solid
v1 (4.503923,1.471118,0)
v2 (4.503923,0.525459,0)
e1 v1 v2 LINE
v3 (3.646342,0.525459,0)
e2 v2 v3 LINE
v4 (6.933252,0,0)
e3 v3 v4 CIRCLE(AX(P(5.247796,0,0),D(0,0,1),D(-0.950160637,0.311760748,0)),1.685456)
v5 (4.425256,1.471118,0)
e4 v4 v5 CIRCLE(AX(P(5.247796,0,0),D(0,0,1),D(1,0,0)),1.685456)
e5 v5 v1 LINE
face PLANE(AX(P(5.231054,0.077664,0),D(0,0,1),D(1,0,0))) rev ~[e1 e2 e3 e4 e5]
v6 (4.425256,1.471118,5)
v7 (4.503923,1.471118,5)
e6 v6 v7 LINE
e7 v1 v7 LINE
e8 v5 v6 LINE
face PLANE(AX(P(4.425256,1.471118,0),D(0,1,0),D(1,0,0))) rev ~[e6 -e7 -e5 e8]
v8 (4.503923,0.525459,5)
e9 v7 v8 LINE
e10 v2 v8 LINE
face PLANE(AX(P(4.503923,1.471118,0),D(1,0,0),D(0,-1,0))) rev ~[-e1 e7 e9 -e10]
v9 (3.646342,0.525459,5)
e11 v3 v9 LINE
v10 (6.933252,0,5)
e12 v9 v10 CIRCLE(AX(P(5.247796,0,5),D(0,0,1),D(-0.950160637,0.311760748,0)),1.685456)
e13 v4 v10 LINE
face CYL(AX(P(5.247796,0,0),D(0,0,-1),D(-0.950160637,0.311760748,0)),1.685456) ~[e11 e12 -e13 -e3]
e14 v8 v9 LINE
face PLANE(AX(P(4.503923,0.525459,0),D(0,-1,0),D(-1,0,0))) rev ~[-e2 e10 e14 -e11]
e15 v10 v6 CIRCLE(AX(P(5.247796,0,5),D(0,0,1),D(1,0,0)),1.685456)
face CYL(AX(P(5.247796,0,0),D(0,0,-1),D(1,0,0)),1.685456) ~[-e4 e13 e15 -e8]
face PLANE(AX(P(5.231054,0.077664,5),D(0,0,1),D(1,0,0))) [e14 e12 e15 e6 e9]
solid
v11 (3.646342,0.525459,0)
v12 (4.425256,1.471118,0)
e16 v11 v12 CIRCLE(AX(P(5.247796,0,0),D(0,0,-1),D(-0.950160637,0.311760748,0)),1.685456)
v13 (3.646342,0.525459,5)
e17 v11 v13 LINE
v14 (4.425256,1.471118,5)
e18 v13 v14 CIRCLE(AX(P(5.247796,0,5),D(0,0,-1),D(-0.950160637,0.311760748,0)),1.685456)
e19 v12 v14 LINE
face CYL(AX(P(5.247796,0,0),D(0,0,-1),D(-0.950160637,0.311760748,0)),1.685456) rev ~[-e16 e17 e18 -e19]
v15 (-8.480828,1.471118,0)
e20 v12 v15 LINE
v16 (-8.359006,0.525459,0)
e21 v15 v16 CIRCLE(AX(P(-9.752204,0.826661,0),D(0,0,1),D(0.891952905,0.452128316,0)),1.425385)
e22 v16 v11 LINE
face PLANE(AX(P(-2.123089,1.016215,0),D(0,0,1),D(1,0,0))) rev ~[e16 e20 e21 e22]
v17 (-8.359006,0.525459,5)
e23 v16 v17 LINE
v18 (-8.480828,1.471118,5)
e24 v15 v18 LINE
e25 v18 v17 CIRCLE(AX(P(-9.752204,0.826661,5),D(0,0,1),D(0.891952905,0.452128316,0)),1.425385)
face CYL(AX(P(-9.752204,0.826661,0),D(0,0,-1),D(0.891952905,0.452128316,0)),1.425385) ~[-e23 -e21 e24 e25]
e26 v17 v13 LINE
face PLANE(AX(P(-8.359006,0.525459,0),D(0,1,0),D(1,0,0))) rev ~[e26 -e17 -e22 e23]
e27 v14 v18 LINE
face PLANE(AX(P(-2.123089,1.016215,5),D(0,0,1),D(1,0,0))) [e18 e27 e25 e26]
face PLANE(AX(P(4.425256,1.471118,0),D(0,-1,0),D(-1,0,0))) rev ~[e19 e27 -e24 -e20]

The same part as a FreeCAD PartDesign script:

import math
import FreeCAD as App
import Part
import Sketcher

V = App.Vector
Q = App.Units.Quantity

doc = App.newDocument("Part")
params = doc.addObject("Spreadsheet::Sheet", "Params")
for row, (alias, value) in enumerate([
    ("pad1_length", "5 mm"),
    ("pad2_length", "5 mm"),
], start=1):
    params.set(f"A{row}", alias)
    params.set(f"B{row}", "=" + value)
    params.setAlias(f"B{row}", alias)

body = doc.addObject("PartDesign::Body", "Body")

# Sketch on XY plane
sketch1 = body.newObject("Sketcher::SketchObject", "Sketch")
sketch1.AttachmentSupport = (doc.getObject("XY_Plane"), [""])
sketch1.MapMode = "FlatFace"
sketch1.addGeometry([
    Part.ArcOfCircle(Part.Circle(V(5.25, 0, 0), V(0, 0, 1), 1.69), math.radians(0), math.radians(119)),  # 0
    Part.LineSegment(V(4.43, 1.47, 0), V(4.5, 1.47, 0)),  # 1
    Part.LineSegment(V(4.5, 1.47, 0), V(4.5, 0.53, 0)),  # 2
    Part.LineSegment(V(4.5, 0.53, 0), V(3.65, 0.53, 0)),  # 3
    Part.ArcOfCircle(Part.Circle(V(5.25, 0, 0), V(0, 0, 1), 1.69), math.radians(162), math.radians(360)),  # 4
], False)
sketch1.addConstraint([
    Sketcher.Constraint("Coincident", 0, 2, 1, 1),
    Sketcher.Constraint("Coincident", 1, 2, 2, 1),
    Sketcher.Constraint("Coincident", 2, 2, 3, 1),
    Sketcher.Constraint("Coincident", 3, 2, 4, 1),
    Sketcher.Constraint("Tangent", 4, 2, 0, 1),
    Sketcher.Constraint("Horizontal", 1),
    Sketcher.Constraint("Vertical", 2),
    Sketcher.Constraint("Horizontal", 3),
    Sketcher.Constraint("Equal", 0, 4),
    Sketcher.Constraint("PointOnObject", 0, 3, -1),
    Sketcher.Constraint("PointOnObject", 4, 2, -1),
    Sketcher.Constraint("Radius", 0, Q("1.685456 mm")),
    Sketcher.Constraint("DistanceX", 3, 2, 3, 1, Q("0.85758 mm")),
    Sketcher.Constraint("DistanceY", 2, 2, 2, 1, Q("0.945659 mm")),
    Sketcher.Constraint("DistanceX", 1, 1, 1, 2, Q("0.078667 mm")),
    Sketcher.Constraint("DistanceX", -1, 1, 4, 2, Q("6.933252 mm")),
])
pad1 = body.newObject("PartDesign::Pad", "Pad")
pad1.Profile = sketch1
pad1.setExpression("Length", "Params.pad1_length")
body2 = doc.addObject("PartDesign::Body", "Body001")

# Sketch on XY plane
sketch2 = body2.newObject("Sketcher::SketchObject", "Sketch001")
sketch2.AttachmentSupport = (doc.getObject("XY_Plane001"), [""])
sketch2.MapMode = "FlatFace"
sketch2.addGeometry([
    Part.LineSegment(V(-8.4, 0.5, 0), V(3.6, 0.5, 0)),
    Part.ArcOfCircle(Part.Circle(V(5.2, 0, 0), V(0, 0, 1), 1.7), math.radians(119), math.radians(162)),
    Part.LineSegment(V(4.4, 1.5, 0), V(-8.5, 1.5, 0)),
    Part.ArcOfCircle(Part.Circle(V(-9.8, 0.8, 0), V(0, 0, 1), 1.4), math.radians(27), math.radians(348)),
], False)
sketch2.addConstraint([
    Sketcher.Constraint("Coincident", 0, 2, 1, 2),
    Sketcher.Constraint("Coincident", 1, 1, 2, 1),
    Sketcher.Constraint("Coincident", 2, 2, 3, 1),
    Sketcher.Constraint("Coincident", 3, 2, 0, 1),
    Sketcher.Constraint("Horizontal", 0),
    Sketcher.Constraint("Horizontal", 2),
    Sketcher.Constraint("PointOnObject", 1, 3, -1),
    Sketcher.Constraint("DistanceX", 3, 3, 1, 3, Q("15 mm")),
    Sketcher.Constraint("Radius", 1, Q("1.685456 mm")),
    Sketcher.Constraint("Radius", 3, Q("1.425385 mm")),
    Sketcher.Constraint("DistanceX", 0, 1, 0, 2, Q("12.005349 mm")),
    Sketcher.Constraint("DistanceX", 2, 2, 2, 1, Q("12.906083 mm")),
    Sketcher.Constraint("DistanceY", -1, 1, 3, 3, Q("0.826661 mm")),
    Sketcher.Constraint("DistanceX", -1, 1, 1, 3, Q("5.247796 mm")),
])
pad2 = body2.newObject("PartDesign::Pad", "Pad001")
pad2.Profile = sketch2
pad2.setExpression("Length", "Params.pad2_length")

doc.recompute()
